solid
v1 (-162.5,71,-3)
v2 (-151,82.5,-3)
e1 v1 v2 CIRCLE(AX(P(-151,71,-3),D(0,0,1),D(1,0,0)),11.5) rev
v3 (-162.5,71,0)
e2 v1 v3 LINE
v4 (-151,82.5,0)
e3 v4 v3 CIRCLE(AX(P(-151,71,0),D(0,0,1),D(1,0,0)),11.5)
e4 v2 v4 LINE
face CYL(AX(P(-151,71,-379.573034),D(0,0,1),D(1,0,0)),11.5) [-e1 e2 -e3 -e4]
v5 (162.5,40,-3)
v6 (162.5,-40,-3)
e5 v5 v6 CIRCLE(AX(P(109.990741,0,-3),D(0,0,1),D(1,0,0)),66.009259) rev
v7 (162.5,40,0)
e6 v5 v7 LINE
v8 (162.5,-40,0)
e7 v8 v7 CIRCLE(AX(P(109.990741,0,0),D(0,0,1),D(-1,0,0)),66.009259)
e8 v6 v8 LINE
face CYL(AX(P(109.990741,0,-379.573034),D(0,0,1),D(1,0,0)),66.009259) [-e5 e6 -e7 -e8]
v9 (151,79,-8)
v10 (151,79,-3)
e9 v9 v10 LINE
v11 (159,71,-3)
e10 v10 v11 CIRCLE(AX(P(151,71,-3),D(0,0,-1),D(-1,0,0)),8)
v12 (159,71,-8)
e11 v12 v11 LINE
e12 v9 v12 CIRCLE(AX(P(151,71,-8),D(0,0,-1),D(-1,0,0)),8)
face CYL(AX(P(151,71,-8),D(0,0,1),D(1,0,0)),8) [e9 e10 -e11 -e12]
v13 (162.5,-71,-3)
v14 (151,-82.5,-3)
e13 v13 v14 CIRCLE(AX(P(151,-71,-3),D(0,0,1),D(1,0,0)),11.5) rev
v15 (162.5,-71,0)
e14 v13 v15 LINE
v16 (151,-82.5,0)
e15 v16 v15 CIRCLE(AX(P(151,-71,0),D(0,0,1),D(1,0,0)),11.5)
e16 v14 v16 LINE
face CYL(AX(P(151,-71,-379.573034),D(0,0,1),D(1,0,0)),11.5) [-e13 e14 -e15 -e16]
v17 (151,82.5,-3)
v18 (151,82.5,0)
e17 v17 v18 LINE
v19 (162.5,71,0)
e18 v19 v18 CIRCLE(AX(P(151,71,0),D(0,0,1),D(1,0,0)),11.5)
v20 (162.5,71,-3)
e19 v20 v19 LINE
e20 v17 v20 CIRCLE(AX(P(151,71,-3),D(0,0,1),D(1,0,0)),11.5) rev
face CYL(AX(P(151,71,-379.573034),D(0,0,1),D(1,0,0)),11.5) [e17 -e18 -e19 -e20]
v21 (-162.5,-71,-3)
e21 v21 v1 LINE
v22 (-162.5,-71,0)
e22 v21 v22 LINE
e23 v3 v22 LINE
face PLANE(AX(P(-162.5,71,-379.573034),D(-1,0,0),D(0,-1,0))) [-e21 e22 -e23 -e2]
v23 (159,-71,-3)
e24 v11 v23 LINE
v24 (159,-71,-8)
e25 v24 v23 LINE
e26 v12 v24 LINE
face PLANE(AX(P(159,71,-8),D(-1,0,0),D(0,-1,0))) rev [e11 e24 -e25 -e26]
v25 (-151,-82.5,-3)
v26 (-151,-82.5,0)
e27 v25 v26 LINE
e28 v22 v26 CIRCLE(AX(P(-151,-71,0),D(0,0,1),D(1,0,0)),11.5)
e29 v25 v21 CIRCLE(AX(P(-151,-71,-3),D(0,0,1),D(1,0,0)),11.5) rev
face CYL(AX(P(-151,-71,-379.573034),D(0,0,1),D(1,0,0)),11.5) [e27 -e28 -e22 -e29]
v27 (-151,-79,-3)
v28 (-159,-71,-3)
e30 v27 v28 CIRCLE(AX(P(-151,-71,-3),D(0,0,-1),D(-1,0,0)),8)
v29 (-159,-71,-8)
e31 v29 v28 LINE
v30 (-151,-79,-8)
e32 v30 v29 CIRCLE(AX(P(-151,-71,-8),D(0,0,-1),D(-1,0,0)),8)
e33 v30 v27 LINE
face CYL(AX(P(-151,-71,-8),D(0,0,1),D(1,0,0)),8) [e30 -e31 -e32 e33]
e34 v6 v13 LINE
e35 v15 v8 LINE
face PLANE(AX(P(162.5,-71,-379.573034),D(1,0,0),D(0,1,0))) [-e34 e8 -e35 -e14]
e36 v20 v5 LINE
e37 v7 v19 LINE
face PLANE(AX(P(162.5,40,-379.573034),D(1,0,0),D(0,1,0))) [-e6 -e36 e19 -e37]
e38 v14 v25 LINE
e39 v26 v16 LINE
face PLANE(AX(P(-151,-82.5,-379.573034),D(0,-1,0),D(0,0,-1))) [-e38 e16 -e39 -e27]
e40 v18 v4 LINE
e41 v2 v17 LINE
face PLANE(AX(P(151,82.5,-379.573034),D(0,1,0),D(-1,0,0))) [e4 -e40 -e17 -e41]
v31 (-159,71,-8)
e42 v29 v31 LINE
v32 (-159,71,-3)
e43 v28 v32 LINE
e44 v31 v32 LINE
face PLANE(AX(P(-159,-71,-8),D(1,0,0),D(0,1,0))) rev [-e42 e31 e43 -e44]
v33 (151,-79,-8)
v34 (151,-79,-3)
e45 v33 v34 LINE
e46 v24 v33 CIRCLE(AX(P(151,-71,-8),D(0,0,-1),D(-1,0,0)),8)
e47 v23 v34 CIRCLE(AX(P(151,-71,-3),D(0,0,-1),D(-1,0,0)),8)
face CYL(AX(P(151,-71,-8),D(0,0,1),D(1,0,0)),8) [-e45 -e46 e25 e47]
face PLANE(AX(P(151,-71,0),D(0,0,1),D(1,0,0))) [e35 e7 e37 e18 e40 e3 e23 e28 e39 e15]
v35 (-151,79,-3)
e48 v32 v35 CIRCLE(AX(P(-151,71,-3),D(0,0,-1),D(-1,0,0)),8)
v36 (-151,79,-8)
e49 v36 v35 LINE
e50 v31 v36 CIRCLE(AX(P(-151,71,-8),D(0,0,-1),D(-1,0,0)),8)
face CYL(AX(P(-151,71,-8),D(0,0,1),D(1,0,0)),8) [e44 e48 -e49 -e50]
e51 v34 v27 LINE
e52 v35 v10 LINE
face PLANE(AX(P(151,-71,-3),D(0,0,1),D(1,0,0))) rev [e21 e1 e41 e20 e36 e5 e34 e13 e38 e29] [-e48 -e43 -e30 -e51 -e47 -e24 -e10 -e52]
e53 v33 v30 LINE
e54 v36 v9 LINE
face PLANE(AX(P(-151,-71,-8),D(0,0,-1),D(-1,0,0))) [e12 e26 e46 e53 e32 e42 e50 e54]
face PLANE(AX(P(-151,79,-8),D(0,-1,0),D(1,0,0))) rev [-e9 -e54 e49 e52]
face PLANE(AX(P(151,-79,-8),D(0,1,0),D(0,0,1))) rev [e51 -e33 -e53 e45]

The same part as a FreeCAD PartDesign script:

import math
import FreeCAD as App
import Part
import Sketcher
Q = App.Units.Quantity

doc = App.newDocument("Part")
body = doc.addObject("PartDesign::Body", "Body")

# Sketch on XY plane
sketch1 = body.newObject("Sketcher::SketchObject", "Sketch")
sketch1.AttachmentSupport = (doc.getObject("XY_Plane"), [""])
sketch1.MapMode = "FlatFace"
sketch1.addGeometry(Part.LineSegment(App.Vector(151, 81, 0), App.Vector(-151, 81, 0)), False)
sketch1.addGeometry(Part.ArcOfCircle(Part.Circle(App.Vector(-151, 71, 0), App.Vector(0, 0, 1), 10), math.radians(90), math.radians(180)), False)
sketch1.addGeometry(Part.LineSegment(App.Vector(-161, 71, 0), App.Vector(-161, -71, 0)), False)
sketch1.addGeometry(Part.ArcOfCircle(Part.Circle(App.Vector(-151, -71, 0), App.Vector(0, 0, 1), 10), math.radians(180), math.radians(270)), False)
sketch1.addGeometry(Part.LineSegment(App.Vector(-151, -81, 0), App.Vector(151, -81, 0)), False)
sketch1.addGeometry(Part.ArcOfCircle(Part.Circle(App.Vector(151, -71, 0), App.Vector(0, 0, 1), 10), math.radians(-90), math.radians(0)), False)
sketch1.addGeometry(Part.LineSegment(App.Vector(161, -71, 0), App.Vector(161, 71, 0)), False)
sketch1.addGeometry(Part.ArcOfCircle(Part.Circle(App.Vector(151, 71, 0), App.Vector(0, 0, 1), 10), math.radians(0), math.radians(90)), False)
sketch1.addConstraint(Sketcher.Constraint("Tangent", 0, 2, 1, 1))
sketch1.addConstraint(Sketcher.Constraint("Tangent", 1, 2, 2, 1))
sketch1.addConstraint(Sketcher.Constraint("Tangent", 2, 2, 3, 1))
sketch1.addConstraint(Sketcher.Constraint("Tangent", 3, 2, 4, 1))
sketch1.addConstraint(Sketcher.Constraint("Tangent", 4, 2, 5, 1))
sketch1.addConstraint(Sketcher.Constraint("Tangent", 5, 2, 6, 1))
sketch1.addConstraint(Sketcher.Constraint("Tangent", 6, 2, 7, 1))
sketch1.addConstraint(Sketcher.Constraint("Tangent", 7, 2, 0, 1))
sketch1.addConstraint(Sketcher.Constraint("Horizontal", 0))
sketch1.addConstraint(Sketcher.Constraint("Vertical", 2))
sketch1.addConstraint(Sketcher.Constraint("Horizontal", 4))
sketch1.addConstraint(Sketcher.Constraint("Vertical", 6))
sketch1.addConstraint(Sketcher.Constraint("Equal", 1, 3))
sketch1.addConstraint(Sketcher.Constraint("Equal", 3, 5))
sketch1.addConstraint(Sketcher.Constraint("Equal", 5, 7))
sketch1.addConstraint(Sketcher.Constraint("Symmetric", 1, 3, 5, 3, -1, 1))
sketch1.addConstraint(Sketcher.Constraint("Radius", 1, Q("10 mm")))
sketch1.addConstraint(Sketcher.Constraint("DistanceX", 0, 2, 0, 1, Q("302 mm")))
sketch1.addConstraint(Sketcher.Constraint("DistanceY", 2, 2, 2, 1, Q("142 mm")))
pad1 = body.newObject("PartDesign::Pad", "Pad")
pad1.Profile = sketch1
pad1.Length = 3
pad1.Reversed = True

# Sketch on XY plane
sketch2 = body.newObject("Sketcher::SketchObject", "Sketch001")
sketch2.AttachmentSupport = (doc.getObject("XY_Plane"), [""])
sketch2.MapMode = "FlatFace"
sketch2.AttachmentOffset = App.Placement(App.Vector(0, 0, -3), App.Rotation())
sketch2.addGeometry(Part.LineSegment(App.Vector(151, -79, 0), App.Vector(-151, -79, 0)), False)
sketch2.addGeometry(Part.ArcOfCircle(Part.Circle(App.Vector(-151, -71, 0), App.Vector(0, 0, 1), 8), math.radians(-180), math.radians(-90)), False)
sketch2.addGeometry(Part.LineSegment(App.Vector(-159, -71, 0), App.Vector(-159, 71, 0)), False)
sketch2.addGeometry(Part.ArcOfCircle(Part.Circle(App.Vector(-151, 71, 0), App.Vector(0, 0, 1), 8), math.radians(90), math.radians(180)), False)
sketch2.addGeometry(Part.LineSegment(App.Vector(-151, 79, 0), App.Vector(151, 79, 0)), False)
sketch2.addGeometry(Part.ArcOfCircle(Part.Circle(App.Vector(151, 71, 0), App.Vector(0, 0, 1), 8), math.radians(0), math.radians(90)), False)
sketch2.addGeometry(Part.LineSegment(App.Vector(159, 71, 0), App.Vector(159, -71, 0)), False)
sketch2.addGeometry(Part.ArcOfCircle(Part.Circle(App.Vector(151, -71, 0), App.Vector(0, 0, 1), 8), math.radians(-90), math.radians(0)), False)
sketch2.addConstraint(Sketcher.Constraint("Tangent", 0, 2, 1, 2))
sketch2.addConstraint(Sketcher.Constraint("Tangent", 1, 1, 2, 1))
sketch2.addConstraint(Sketcher.Constraint("Tangent", 2, 2, 3, 2))
sketch2.addConstraint(Sketcher.Constraint("Tangent", 3, 1, 4, 1))
sketch2.addConstraint(Sketcher.Constraint("Tangent", 4, 2, 5, 2))
sketch2.addConstraint(Sketcher.Constraint("Tangent", 5, 1, 6, 1))
sketch2.addConstraint(Sketcher.Constraint("Tangent", 6, 2, 7, 2))
sketch2.addConstraint(Sketcher.Constraint("Tangent", 7, 1, 0, 1))
sketch2.addConstraint(Sketcher.Constraint("Horizontal", 0))
sketch2.addConstraint(Sketcher.Constraint("Vertical", 2))
sketch2.addConstraint(Sketcher.Constraint("Horizontal", 4))
sketch2.addConstraint(Sketcher.Constraint("Vertical", 6))
sketch2.addConstraint(Sketcher.Constraint("Equal", 1, 3))
sketch2.addConstraint(Sketcher.Constraint("Equal", 3, 5))
sketch2.addConstraint(Sketcher.Constraint("Equal", 5, 7))
sketch2.addConstraint(Sketcher.Constraint("Symmetric", 1, 3, 5, 3, -1, 1))
sketch2.addConstraint(Sketcher.Constraint("Radius", 1, Q("8 mm")))
sketch2.addConstraint(Sketcher.Constraint("DistanceX", 0, 2, 0, 1, Q("302 mm")))
sketch2.addConstraint(Sketcher.Constraint("DistanceY", 2, 1, 2, 2, Q("142 mm")))
pad2 = body.newObject("PartDesign::Pad", "Pad001")
pad2.Profile = sketch2
pad2.Length = 5
pad2.Reversed = True

# Sketch on XY plane
sketch3 = body.newObject("Sketcher::SketchObject", "Sketch002")
sketch3.AttachmentSupport = (doc.getObject("XY_Plane"), [""])
sketch3.MapMode = "FlatFace"
sketch3.addGeometry(Part.LineSegment(App.Vector(162, 40, 0), App.Vector(162, 71, 0)), False)
sketch3.addGeometry(Part.ArcOfCircle(Part.Circle(App.Vector(151, 71, 0), App.Vector(0, 0, 1), 11), math.radians(0), math.radians(90)), False)
sketch3.addGeometry(Part.LineSegment(App.Vector(151, 82, 0), App.Vector(-151, 82, 0)), False)
sketch3.addGeometry(Part.ArcOfCircle(Part.Circle(App.Vector(-151, 71, 0), App.Vector(0, 0, 1), 11), math.radians(90), math.radians(180)), False)
sketch3.addGeometry(Part.LineSegment(App.Vector(-162, 71, 0), App.Vector(-162, -71, 0)), False)
sketch3.addGeometry(Part.ArcOfCircle(Part.Circle(App.Vector(-151, -71, 0), App.Vector(0, 0, 1), 11), math.radians(180), math.radians(270)), False)
sketch3.addGeometry(Part.LineSegment(App.Vector(-151, -82, 0), App.Vector(151, -82, 0)), False)
sketch3.addGeometry(Part.ArcOfCircle(Part.Circle(App.Vector(151, -71, 0), App.Vector(0, 0, 1), 11), math.radians(-90), math.radians(0)), False)
sketch3.addGeometry(Part.LineSegment(App.Vector(162, -71, 0), App.Vector(162, -40, 0)), False)
sketch3.addGeometry(Part.ArcOfCircle(Part.Circle(App.Vector(110, 0, 0), App.Vector(0, 0, 1), 66), math.radians(-37), math.radians(37)), False)
sketch3.addConstraint(Sketcher.Constraint("Tangent", 0, 2, 1, 1))
sketch3.addConstraint(Sketcher.Constraint("Tangent", 1, 2, 2, 1))
sketch3.addConstraint(Sketcher.Constraint("Tangent", 2, 2, 3, 1))
sketch3.addConstraint(Sketcher.Constraint("Tangent", 3, 2, 4, 1))
sketch3.addConstraint(Sketcher.Constraint("Tangent", 4, 2, 5, 1))
sketch3.addConstraint(Sketcher.Constraint("Tangent", 5, 2, 6, 1))
sketch3.addConstraint(Sketcher.Constraint("Tangent", 6, 2, 7, 1))
sketch3.addConstraint(Sketcher.Constraint("Tangent", 7, 2, 8, 1))
sketch3.addConstraint(Sketcher.Constraint("Coincident", 8, 2, 9, 1))
sketch3.addConstraint(Sketcher.Constraint("Coincident", 9, 2, 0, 1))
sketch3.addConstraint(Sketcher.Constraint("Vertical", 0))
sketch3.addConstraint(Sketcher.Constraint("Horizontal", 2))
sketch3.addConstraint(Sketcher.Constraint("Vertical", 4))
sketch3.addConstraint(Sketcher.Constraint("Horizontal", 6))
sketch3.addConstraint(Sketcher.Constraint("Vertical", 8))
sketch3.addConstraint(Sketcher.Constraint("Equal", 1, 3))
sketch3.addConstraint(Sketcher.Constraint("Equal", 3, 5))
sketch3.addConstraint(Sketcher.Constraint("Equal", 5, 7))
sketch3.addConstraint(Sketcher.Constraint("Symmetric", 1, 3, 5, 3, -1, 1))
sketch3.addConstraint(Sketcher.Constraint("Symmetric", 8, 2, 9, 2, -1))
sketch3.addConstraint(Sketcher.Constraint("Radius", 1, Q("11.5 mm")))
sketch3.addConstraint(Sketcher.Constraint("DistanceX", 2, 2, 2, 1, Q("302 mm")))
sketch3.addConstraint(Sketcher.Constraint("DistanceY", 0, 1, 0, 2, Q("31 mm")))
sketch3.addConstraint(Sketcher.Constraint("DistanceY", 4, 2, 4, 1, Q("142 mm")))
sketch3.addConstraint(Sketcher.Constraint("Radius", 9, Q("66.009259 mm")))
pad3 = body.newObject("PartDesign::Pad", "Pad002")
pad3.Profile = sketch3
pad3.Length = 3
pad3.Reversed = True

doc.recompute()
